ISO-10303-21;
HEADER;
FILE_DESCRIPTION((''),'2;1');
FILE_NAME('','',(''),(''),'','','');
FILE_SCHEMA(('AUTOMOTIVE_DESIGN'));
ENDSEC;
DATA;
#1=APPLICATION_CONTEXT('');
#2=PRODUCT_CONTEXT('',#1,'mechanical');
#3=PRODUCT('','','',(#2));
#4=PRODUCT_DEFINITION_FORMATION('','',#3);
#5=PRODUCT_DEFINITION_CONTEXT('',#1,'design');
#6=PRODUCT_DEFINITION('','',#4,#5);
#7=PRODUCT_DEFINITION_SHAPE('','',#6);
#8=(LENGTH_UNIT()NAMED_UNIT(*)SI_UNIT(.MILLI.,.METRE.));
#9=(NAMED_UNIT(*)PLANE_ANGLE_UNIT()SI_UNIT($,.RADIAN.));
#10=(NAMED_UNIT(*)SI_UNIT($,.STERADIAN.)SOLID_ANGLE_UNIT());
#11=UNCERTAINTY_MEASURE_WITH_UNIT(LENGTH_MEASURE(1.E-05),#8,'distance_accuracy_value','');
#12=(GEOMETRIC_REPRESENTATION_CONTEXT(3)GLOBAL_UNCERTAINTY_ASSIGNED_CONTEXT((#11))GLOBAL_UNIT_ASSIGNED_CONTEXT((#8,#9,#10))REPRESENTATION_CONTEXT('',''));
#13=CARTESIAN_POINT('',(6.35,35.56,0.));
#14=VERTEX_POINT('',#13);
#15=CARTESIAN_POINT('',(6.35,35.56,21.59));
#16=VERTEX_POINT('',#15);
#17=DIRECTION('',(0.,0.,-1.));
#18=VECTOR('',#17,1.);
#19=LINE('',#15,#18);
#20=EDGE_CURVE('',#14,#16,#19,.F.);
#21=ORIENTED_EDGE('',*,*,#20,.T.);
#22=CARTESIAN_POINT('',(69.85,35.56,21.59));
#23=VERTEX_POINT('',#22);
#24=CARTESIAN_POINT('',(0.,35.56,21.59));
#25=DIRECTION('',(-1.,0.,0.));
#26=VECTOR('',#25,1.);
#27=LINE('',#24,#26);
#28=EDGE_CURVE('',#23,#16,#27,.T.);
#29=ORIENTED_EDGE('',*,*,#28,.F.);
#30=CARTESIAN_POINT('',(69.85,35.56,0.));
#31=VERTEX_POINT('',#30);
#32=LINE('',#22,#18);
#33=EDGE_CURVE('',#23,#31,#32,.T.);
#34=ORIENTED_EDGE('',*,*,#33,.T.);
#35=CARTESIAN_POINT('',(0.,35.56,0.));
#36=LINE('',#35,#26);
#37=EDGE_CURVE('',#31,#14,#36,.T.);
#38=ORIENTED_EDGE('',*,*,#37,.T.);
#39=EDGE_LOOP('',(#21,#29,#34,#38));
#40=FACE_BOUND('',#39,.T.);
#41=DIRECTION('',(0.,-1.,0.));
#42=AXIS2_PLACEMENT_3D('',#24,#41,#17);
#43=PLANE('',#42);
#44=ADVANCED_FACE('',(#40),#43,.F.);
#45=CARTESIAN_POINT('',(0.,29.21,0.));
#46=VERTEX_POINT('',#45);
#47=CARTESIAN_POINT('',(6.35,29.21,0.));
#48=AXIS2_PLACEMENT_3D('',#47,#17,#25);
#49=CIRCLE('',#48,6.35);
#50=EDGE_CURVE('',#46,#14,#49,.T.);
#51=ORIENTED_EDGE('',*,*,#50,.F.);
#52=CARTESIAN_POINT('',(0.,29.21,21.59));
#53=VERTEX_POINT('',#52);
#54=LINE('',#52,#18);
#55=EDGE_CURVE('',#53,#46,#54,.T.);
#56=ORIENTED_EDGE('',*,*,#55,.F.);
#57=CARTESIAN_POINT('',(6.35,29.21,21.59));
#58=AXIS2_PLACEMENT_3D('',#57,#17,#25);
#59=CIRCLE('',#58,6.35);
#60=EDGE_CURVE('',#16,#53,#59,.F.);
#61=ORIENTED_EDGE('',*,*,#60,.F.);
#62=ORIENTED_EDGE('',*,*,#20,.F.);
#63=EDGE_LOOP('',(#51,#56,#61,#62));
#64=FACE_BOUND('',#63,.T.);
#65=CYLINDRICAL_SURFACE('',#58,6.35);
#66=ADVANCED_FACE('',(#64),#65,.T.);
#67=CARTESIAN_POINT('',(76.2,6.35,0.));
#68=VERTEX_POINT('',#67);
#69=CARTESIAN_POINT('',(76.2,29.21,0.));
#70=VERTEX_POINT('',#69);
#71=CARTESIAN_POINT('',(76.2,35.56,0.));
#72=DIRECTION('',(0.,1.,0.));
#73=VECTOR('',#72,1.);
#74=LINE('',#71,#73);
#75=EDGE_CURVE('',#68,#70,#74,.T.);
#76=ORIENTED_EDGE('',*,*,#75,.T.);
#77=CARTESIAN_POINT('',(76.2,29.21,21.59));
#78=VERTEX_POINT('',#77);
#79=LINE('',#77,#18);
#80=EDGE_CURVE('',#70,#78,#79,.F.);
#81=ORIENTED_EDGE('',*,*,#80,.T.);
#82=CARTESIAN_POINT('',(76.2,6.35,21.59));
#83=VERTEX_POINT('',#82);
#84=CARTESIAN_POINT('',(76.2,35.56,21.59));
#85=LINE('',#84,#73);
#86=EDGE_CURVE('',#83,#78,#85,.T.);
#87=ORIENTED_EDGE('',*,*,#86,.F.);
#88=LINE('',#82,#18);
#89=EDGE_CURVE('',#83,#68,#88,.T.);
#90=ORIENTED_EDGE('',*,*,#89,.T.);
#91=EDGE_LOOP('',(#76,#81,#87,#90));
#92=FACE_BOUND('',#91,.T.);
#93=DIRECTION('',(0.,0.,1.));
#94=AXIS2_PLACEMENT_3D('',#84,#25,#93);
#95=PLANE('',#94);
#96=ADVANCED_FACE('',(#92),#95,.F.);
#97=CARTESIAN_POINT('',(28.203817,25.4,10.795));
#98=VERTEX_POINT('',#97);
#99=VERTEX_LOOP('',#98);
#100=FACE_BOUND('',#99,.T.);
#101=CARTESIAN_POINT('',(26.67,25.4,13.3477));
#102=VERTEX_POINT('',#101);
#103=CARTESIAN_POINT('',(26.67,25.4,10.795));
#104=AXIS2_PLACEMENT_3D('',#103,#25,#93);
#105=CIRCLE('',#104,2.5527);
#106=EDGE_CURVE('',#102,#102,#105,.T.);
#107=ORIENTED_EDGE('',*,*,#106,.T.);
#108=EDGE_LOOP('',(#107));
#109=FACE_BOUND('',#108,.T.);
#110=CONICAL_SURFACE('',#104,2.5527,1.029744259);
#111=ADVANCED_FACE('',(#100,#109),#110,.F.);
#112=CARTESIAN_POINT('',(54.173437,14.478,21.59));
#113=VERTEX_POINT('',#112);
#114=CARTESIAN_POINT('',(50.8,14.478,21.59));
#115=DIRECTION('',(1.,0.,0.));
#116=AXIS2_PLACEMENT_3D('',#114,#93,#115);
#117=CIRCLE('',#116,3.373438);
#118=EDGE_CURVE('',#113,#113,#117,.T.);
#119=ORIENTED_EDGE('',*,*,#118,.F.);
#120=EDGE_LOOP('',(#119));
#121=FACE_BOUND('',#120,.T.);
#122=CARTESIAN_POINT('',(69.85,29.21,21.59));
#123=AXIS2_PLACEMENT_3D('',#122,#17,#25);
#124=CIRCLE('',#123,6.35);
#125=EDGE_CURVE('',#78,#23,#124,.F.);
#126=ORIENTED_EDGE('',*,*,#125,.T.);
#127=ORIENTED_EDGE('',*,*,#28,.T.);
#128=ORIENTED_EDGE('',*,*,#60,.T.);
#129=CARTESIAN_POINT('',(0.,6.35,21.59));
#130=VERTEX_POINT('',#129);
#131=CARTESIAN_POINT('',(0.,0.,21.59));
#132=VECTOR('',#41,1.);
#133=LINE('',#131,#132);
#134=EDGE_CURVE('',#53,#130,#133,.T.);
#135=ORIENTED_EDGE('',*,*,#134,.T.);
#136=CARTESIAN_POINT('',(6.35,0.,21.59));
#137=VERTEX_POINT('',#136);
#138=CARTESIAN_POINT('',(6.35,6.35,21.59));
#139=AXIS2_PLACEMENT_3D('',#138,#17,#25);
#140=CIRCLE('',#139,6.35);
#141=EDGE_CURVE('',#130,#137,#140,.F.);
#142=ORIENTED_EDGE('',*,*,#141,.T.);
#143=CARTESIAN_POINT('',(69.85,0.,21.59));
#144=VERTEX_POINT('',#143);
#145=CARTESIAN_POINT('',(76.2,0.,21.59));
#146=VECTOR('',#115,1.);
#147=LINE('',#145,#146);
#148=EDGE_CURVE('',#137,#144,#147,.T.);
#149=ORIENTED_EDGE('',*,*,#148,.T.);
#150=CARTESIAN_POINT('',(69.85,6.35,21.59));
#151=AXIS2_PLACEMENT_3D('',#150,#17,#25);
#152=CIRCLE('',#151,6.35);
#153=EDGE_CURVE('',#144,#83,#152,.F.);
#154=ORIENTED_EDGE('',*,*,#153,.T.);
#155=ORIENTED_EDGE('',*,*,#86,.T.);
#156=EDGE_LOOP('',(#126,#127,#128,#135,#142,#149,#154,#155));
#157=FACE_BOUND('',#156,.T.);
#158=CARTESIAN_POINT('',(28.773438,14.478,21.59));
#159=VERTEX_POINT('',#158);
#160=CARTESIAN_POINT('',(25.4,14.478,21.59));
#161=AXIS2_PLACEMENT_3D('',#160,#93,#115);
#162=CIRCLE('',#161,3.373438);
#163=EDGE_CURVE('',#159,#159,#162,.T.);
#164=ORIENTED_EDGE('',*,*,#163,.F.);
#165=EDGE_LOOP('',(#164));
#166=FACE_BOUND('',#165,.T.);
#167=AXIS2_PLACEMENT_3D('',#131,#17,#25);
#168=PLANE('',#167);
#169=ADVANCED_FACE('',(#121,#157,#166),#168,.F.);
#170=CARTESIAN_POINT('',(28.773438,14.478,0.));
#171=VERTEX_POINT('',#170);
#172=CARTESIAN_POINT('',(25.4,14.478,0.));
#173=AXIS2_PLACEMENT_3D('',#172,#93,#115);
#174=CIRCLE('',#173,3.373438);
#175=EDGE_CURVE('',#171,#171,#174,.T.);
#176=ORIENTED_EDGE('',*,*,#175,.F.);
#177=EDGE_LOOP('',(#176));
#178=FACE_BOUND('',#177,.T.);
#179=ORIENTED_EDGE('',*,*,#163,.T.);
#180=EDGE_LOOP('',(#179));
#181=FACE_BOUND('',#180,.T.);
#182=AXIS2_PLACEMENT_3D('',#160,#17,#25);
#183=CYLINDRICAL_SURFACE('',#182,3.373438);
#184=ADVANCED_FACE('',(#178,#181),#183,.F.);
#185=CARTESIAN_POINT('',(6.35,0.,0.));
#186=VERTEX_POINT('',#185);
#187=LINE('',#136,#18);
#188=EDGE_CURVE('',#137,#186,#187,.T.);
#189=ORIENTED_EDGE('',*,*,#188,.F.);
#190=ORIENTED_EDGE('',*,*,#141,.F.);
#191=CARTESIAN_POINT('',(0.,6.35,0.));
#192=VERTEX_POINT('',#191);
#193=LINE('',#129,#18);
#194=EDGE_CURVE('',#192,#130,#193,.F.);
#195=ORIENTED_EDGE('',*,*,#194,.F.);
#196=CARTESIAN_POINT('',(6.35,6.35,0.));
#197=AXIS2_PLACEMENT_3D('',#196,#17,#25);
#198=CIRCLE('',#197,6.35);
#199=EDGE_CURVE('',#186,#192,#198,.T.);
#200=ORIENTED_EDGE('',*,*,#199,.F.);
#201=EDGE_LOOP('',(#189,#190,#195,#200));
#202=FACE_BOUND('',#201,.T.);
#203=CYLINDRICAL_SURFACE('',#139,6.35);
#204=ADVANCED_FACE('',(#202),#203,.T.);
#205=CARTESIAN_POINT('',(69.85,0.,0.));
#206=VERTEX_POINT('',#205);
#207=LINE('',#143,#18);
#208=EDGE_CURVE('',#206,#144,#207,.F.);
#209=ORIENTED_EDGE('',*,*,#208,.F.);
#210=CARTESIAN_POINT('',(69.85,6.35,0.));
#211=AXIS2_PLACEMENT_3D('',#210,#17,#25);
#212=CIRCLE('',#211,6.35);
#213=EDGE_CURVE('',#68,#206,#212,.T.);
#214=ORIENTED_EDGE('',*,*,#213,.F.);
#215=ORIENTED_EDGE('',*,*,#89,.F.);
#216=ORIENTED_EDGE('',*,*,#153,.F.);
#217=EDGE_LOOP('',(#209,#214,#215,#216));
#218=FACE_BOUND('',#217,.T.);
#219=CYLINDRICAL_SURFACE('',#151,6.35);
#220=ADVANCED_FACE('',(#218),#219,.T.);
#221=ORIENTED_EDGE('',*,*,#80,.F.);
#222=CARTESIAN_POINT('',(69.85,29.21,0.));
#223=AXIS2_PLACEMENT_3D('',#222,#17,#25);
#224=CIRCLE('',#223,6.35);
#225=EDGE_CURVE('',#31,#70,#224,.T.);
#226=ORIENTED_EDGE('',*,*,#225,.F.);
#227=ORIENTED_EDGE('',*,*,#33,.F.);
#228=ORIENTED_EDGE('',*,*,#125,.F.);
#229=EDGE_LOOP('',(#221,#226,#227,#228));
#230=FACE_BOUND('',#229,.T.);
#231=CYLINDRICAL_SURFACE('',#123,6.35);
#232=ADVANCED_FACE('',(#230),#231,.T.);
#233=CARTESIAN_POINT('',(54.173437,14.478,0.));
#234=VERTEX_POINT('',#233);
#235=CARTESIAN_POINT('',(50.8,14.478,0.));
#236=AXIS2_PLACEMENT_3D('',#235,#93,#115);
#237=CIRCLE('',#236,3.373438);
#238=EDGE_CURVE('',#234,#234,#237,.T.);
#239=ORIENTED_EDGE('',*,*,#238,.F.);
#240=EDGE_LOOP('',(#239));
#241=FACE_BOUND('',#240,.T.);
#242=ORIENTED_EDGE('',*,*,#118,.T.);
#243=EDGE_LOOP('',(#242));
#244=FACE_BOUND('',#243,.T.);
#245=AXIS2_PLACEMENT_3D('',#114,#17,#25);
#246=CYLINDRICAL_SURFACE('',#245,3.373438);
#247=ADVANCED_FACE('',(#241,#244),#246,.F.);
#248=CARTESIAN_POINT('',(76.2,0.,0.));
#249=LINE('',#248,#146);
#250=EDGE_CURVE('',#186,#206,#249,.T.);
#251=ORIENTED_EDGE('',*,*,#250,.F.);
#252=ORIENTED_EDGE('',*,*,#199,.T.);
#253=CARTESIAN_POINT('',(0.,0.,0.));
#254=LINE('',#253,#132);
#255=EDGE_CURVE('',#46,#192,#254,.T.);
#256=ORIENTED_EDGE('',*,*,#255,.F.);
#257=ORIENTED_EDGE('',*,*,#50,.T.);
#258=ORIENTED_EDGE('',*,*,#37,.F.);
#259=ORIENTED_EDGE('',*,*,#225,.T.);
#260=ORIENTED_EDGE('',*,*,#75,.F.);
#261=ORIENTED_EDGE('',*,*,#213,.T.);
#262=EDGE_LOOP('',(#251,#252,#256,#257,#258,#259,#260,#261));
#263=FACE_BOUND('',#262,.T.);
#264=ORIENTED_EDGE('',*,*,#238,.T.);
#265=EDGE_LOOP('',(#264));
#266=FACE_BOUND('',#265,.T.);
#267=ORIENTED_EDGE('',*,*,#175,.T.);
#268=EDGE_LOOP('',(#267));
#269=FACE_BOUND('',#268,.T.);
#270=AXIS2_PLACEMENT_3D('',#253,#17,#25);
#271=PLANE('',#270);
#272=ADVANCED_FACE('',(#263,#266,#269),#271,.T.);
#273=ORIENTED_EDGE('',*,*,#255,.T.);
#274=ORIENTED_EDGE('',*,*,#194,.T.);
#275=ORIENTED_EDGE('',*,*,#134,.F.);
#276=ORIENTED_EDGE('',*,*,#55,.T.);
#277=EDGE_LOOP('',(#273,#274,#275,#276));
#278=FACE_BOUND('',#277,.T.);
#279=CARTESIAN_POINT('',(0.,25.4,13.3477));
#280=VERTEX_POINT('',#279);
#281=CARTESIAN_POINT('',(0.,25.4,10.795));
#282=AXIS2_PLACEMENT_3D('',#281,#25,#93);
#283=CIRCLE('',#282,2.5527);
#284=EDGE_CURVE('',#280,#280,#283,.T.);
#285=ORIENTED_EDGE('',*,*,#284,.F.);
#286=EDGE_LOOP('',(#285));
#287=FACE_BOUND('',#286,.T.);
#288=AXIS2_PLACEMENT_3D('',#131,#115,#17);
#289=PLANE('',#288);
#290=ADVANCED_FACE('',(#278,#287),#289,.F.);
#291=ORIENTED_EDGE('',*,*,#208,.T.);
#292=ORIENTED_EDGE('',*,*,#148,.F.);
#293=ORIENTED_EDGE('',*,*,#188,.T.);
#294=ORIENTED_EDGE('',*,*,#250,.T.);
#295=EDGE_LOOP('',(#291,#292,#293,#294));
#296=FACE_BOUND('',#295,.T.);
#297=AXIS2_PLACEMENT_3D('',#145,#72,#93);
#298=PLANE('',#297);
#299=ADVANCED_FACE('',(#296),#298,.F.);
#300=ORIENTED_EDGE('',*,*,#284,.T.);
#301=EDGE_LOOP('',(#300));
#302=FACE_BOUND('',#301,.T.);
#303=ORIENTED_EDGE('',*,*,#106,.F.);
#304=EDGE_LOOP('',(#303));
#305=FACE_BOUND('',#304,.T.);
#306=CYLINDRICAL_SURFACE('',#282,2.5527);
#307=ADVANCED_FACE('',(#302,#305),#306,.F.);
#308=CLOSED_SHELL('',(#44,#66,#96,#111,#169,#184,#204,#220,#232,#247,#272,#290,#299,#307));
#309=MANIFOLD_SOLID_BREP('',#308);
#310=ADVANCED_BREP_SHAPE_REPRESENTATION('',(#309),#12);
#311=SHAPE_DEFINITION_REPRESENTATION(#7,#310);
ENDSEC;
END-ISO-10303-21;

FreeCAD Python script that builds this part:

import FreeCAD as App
import Part
import Sketcher
from FreeCAD import Vector
Q = App.Units.Quantity


def edges_at(feature, points):
    """Names of the edges that pass closest to the given points."""
    edges = feature.Shape.Edges
    near = lambda p: min(range(len(edges)), key=lambda i: edges[i].distToShape(Part.Vertex(*p))[0])
    return sorted({f"Edge{near(p) + 1}" for p in points})

doc = App.newDocument("Part")
body = doc.addObject("PartDesign::Body", "Body")

sketch1 = body.newObject("Sketcher::SketchObject", "Sketch")
sketch1.AttachmentSupport = (doc.getObject("XY_Plane"), [""])
sketch1.MapMode = "FlatFace"
sketch1.addGeometry(Part.LineSegment(Vector(0, 35.6, 0), Vector(0, 0, 0)), False)
sketch1.addGeometry(Part.LineSegment(Vector(0, 0, 0), Vector(76.2, 0, 0)), False)
sketch1.addGeometry(Part.LineSegment(Vector(76.2, 0, 0), Vector(76.2, 35.6, 0)), False)
sketch1.addGeometry(Part.LineSegment(Vector(76.2, 35.6, 0), Vector(0, 35.6, 0)), False)
sketch1.addGeometry(Part.Circle(Vector(25.4, 14.5, 0), Vector(0, 0, 1), 3.4), False)
sketch1.addGeometry(Part.Circle(Vector(50.8, 14.5, 0), Vector(0, 0, 1), 3.4), False)
sketch1.addConstraint(Sketcher.Constraint("Coincident", 0, 2, 1, 1))
sketch1.addConstraint(Sketcher.Constraint("Coincident", 1, 2, 2, 1))
sketch1.addConstraint(Sketcher.Constraint("Coincident", 2, 2, 3, 1))
sketch1.addConstraint(Sketcher.Constraint("Coincident", 3, 2, 0, 1))
sketch1.addConstraint(Sketcher.Constraint("Vertical", 0))
sketch1.addConstraint(Sketcher.Constraint("Horizontal", 1))
sketch1.addConstraint(Sketcher.Constraint("Vertical", 2))
sketch1.addConstraint(Sketcher.Constraint("Horizontal", 3))
sketch1.addConstraint(Sketcher.Constraint("Coincident", 0, 2, -1, 1))
sketch1.addConstraint(Sketcher.Constraint("Equal", 4, 5))
sketch1.addConstraint(Sketcher.Constraint("Horizontal", 4, 3, 5, 3))
sketch1.addConstraint(Sketcher.Constraint("DistanceX", 1, 1, 1, 2, Q("3 in")))
sketch1.addConstraint(Sketcher.Constraint("Diameter", 4, Q("0.265625 in")))
sketch1.addConstraint(Sketcher.Constraint("DistanceY", 0, 2, 0, 1, Q("1.4 in")))
sketch1.addConstraint(Sketcher.Constraint("DistanceX", -1, 1, 4, 3, Q("1 in")))
sketch1.addConstraint(Sketcher.Constraint("DistanceX", -1, 1, 5, 3, Q("2 in")))
sketch1.addConstraint(Sketcher.Constraint("DistanceY", -1, 1, 4, 3, Q("0.57 in")))
pad1 = body.newObject("PartDesign::Pad", "Pad")
pad1.Profile = sketch1
pad1.Length = Q("0.85 in")
doc.recompute()

fillet = body.newObject("PartDesign::Fillet", "Fillet")
fillet.Base = (pad1, edges_at(pad1, [
    (0, 0, 10.795),
    (0, 35.56, 10.795),
    (76.2, 35.56, 10.795),
    (76.2, 0, 10.795),
]))
fillet.Radius = Q("0.25 in")

sketch2 = body.newObject("Sketcher::SketchObject", "Sketch001")
sketch2.AttachmentSupport = (doc.getObject("YZ_Plane"), [""])
sketch2.MapMode = "FlatFace"
sketch2.addGeometry(Part.Circle(Vector(25.4, 10.8, 0), Vector(0, 0, 1), 2.6), False)
sketch2.addConstraint(Sketcher.Constraint("Diameter", 0, Q("0.201 in")))
sketch2.addConstraint(Sketcher.Constraint("DistanceX", -1, 1, 0, 3, Q("1 in")))
sketch2.addConstraint(Sketcher.Constraint("DistanceY", -1, 1, 0, 3, Q("0.425 in")))
doc.recompute()
hole = body.newObject("PartDesign::Hole", "Hole")
hole.Profile = sketch2
hole.ThreadType = "None"
hole.Diameter = Q("0.201 in")
hole.DepthType = "Dimension"
hole.Depth = Q("1.05 in")
hole.DrillPoint = "Angled"
hole.DrillPointAngle = 118
hole.Reversed = True

doc.recompute()
